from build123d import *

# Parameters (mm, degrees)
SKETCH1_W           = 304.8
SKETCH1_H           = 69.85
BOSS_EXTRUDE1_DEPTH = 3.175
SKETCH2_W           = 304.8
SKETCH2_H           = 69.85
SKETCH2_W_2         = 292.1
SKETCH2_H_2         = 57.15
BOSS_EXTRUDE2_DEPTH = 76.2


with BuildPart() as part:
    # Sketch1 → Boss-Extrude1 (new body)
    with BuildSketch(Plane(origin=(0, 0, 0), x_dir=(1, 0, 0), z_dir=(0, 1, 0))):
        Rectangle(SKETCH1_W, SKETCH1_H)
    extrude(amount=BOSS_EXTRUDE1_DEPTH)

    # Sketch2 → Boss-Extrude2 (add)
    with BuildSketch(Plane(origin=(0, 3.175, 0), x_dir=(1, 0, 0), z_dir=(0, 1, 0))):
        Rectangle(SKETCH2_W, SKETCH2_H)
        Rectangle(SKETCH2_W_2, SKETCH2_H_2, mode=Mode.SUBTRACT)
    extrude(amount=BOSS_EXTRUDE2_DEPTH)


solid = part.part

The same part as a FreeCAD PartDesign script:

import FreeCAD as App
import Part
import Sketcher

V = App.Vector
Q = App.Units.Quantity

doc = App.newDocument("Part")
body = doc.addObject("PartDesign::Body", "Body")

# Sketch on XZ plane
sketch1 = body.newObject("Sketcher::SketchObject", "Sketch")
sketch1.AttachmentSupport = (doc.getObject("XZ_Plane"), [""])
sketch1.MapMode = "FlatFace"
sketch1.addGeometry(Part.LineSegment(V(-152, -35, 0), V(-152, 35, 0)), False)
sketch1.addGeometry(Part.LineSegment(V(-152, 35, 0), V(152, 35, 0)), False)
sketch1.addGeometry(Part.LineSegment(V(152, 35, 0), V(152, -35, 0)), False)
sketch1.addGeometry(Part.LineSegment(V(152, -35, 0), V(-152, -35, 0)), False)
sketch1.addConstraint(Sketcher.Constraint("Coincident", 0, 2, 1, 1))
sketch1.addConstraint(Sketcher.Constraint("Coincident", 1, 2, 2, 1))
sketch1.addConstraint(Sketcher.Constraint("Coincident", 2, 2, 3, 1))
sketch1.addConstraint(Sketcher.Constraint("Coincident", 3, 2, 0, 1))
sketch1.addConstraint(Sketcher.Constraint("Vertical", 0))
sketch1.addConstraint(Sketcher.Constraint("Horizontal", 1))
sketch1.addConstraint(Sketcher.Constraint("Vertical", 2))
sketch1.addConstraint(Sketcher.Constraint("Horizontal", 3))
sketch1.addConstraint(Sketcher.Constraint("Symmetric", 0, 2, 2, 2, -1, 1))
sketch1.addConstraint(Sketcher.Constraint("DistanceX", 1, 1, 1, 2, Q("12 in")))
sketch1.addConstraint(Sketcher.Constraint("DistanceY", 0, 1, 0, 2, Q("2.75 in")))
pad1 = body.newObject("PartDesign::Pad", "Pad")
pad1.Profile = sketch1
pad1.Length = Q("0.125 in")
pad1.Reversed = True

# Sketch on XZ plane
sketch2 = body.newObject("Sketcher::SketchObject", "Sketch001")
sketch2.AttachmentSupport = (doc.getObject("XZ_Plane"), [""])
sketch2.MapMode = "FlatFace"
sketch2.AttachmentOffset = App.Placement(V(0, 0, -0.125 * 25.4), App.Rotation())
sketch2.addGeometry(Part.LineSegment(V(-152, -35, 0), V(-152, 35, 0)), False)
sketch2.addGeometry(Part.LineSegment(V(-152, 35, 0), V(152, 35, 0)), False)
sketch2.addGeometry(Part.LineSegment(V(152, 35, 0), V(152, -35, 0)), False)
sketch2.addGeometry(Part.LineSegment(V(152, -35, 0), V(-152, -35, 0)), False)
sketch2.addGeometry(Part.LineSegment(V(146, 29, 0), V(-146, 29, 0)), False)
sketch2.addGeometry(Part.LineSegment(V(-146, 29, 0), V(-146, -29, 0)), False)
sketch2.addGeometry(Part.LineSegment(V(-146, -29, 0), V(146, -29, 0)), False)
sketch2.addGeometry(Part.LineSegment(V(146, -29, 0), V(146, 29, 0)), False)
sketch2.addConstraint(Sketcher.Constraint("Coincident", 0, 2, 1, 1))
sketch2.addConstraint(Sketcher.Constraint("Coincident", 1, 2, 2, 1))
sketch2.addConstraint(Sketcher.Constraint("Coincident", 2, 2, 3, 1))
sketch2.addConstraint(Sketcher.Constraint("Coincident", 3, 2, 0, 1))
sketch2.addConstraint(Sketcher.Constraint("Coincident", 4, 2, 5, 1))
sketch2.addConstraint(Sketcher.Constraint("Coincident", 5, 2, 6, 1))
sketch2.addConstraint(Sketcher.Constraint("Coincident", 6, 2, 7, 1))
sketch2.addConstraint(Sketcher.Constraint("Coincident", 7, 2, 4, 1))
sketch2.addConstraint(Sketcher.Constraint("Vertical", 0))
sketch2.addConstraint(Sketcher.Constraint("Horizontal", 1))
sketch2.addConstraint(Sketcher.Constraint("Vertical", 2))
sketch2.addConstraint(Sketcher.Constraint("Horizontal", 3))
sketch2.addConstraint(Sketcher.Constraint("Horizontal", 4))
sketch2.addConstraint(Sketcher.Constraint("Vertical", 5))
sketch2.addConstraint(Sketcher.Constraint("Horizontal", 6))
sketch2.addConstraint(Sketcher.Constraint("Vertical", 7))
sketch2.addConstraint(Sketcher.Constraint("Symmetric", 0, 2, 2, 2, -1, 1))
sketch2.addConstraint(Sketcher.Constraint("Symmetric", 4, 2, 6, 2, -1, 1))
sketch2.addConstraint(Sketcher.Constraint("DistanceX", 1, 1, 1, 2, Q("12 in")))
sketch2.addConstraint(Sketcher.Constraint("DistanceX", 4, 2, 4, 1, Q("11.5 in")))
sketch2.addConstraint(Sketcher.Constraint("DistanceY", 0, 1, 0, 2, Q("2.75 in")))
sketch2.addConstraint(Sketcher.Constraint("DistanceY", 5, 2, 5, 1, Q("2.25 in")))
pad2 = body.newObject("PartDesign::Pad", "Pad001")
pad2.Profile = sketch2
pad2.Length = Q("3 in")
pad2.Reversed = True

doc.recompute()
